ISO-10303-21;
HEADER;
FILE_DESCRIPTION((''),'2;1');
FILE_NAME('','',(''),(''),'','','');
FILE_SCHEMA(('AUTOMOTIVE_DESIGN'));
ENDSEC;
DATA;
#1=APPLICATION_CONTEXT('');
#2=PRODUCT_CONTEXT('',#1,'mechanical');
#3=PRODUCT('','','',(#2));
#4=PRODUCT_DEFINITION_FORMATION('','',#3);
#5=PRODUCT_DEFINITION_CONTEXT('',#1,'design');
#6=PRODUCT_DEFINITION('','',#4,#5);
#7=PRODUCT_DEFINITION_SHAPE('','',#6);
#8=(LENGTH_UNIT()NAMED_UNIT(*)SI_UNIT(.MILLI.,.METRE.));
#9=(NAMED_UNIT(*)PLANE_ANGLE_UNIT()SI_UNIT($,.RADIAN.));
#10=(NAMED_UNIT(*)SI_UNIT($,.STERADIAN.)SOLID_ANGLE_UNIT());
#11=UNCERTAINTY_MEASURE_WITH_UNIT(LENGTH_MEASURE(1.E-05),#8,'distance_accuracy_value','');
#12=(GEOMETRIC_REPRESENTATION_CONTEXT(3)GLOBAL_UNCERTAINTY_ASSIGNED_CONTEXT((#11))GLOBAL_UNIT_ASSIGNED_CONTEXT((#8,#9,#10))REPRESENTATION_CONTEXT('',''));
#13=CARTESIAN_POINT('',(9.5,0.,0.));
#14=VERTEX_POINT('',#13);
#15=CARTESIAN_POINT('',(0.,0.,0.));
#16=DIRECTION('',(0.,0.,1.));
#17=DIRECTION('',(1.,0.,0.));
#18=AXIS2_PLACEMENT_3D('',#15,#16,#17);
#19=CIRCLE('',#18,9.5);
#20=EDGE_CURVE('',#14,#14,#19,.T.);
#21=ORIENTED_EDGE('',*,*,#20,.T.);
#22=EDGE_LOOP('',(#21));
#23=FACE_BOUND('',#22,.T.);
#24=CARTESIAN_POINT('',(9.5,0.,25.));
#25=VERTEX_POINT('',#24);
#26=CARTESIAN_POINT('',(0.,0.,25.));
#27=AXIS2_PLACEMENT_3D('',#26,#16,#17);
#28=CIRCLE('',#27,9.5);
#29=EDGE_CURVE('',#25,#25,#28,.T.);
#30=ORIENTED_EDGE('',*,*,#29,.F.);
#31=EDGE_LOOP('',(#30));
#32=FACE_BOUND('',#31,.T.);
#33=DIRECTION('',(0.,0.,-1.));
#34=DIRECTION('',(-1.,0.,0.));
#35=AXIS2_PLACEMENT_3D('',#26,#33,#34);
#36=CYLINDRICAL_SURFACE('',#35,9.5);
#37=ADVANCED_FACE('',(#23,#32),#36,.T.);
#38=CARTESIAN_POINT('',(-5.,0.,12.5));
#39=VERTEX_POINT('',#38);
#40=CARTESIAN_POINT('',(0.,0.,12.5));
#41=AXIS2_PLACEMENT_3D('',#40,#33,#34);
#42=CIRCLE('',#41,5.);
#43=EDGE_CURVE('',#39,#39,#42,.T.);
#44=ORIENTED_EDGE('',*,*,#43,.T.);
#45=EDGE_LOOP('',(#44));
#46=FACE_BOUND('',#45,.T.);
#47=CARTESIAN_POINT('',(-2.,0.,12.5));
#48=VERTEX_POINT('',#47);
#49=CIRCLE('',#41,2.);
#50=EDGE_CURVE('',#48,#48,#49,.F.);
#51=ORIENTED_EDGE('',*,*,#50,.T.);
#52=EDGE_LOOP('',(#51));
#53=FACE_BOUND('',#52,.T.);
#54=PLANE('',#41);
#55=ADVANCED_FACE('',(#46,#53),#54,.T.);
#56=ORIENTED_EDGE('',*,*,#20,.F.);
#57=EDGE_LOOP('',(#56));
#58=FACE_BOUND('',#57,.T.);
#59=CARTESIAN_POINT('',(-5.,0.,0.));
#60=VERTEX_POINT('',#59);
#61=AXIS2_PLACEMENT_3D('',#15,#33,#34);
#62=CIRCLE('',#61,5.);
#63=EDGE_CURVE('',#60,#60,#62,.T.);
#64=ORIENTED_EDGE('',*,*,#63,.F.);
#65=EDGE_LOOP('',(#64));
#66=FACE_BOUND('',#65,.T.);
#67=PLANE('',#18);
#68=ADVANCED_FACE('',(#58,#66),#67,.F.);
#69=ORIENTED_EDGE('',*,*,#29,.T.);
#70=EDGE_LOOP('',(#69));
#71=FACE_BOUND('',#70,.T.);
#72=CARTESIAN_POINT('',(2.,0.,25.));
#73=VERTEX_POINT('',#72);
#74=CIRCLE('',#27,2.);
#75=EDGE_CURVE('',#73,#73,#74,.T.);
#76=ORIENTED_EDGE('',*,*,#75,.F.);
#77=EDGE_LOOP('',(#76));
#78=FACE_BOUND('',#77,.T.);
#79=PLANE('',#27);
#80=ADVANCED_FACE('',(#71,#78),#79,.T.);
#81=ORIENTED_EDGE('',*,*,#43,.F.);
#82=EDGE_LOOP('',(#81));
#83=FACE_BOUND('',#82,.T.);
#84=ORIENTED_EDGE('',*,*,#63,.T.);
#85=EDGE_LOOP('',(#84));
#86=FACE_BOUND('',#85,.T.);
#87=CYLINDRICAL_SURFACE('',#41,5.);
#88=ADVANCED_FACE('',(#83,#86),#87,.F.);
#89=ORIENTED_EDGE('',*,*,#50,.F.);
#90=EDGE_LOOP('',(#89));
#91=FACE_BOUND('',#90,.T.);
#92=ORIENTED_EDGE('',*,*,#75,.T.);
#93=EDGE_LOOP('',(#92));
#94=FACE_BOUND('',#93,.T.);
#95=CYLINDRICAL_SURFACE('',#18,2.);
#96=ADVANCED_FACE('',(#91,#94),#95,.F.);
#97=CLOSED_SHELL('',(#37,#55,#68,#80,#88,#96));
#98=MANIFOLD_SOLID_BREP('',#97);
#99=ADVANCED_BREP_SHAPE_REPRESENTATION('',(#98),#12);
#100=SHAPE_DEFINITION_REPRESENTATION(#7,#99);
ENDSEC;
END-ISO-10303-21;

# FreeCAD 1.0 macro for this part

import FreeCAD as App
import Part
import Sketcher
Q = App.Units.Quantity

doc = App.newDocument("Part")
body = doc.addObject("PartDesign::Body", "Body")

# Sketch on XY plane
sketch1 = body.newObject("Sketcher::SketchObject", "Sketch")
sketch1.AttachmentSupport = (doc.getObject("XY_Plane"), [""])
sketch1.MapMode = "FlatFace"
sketch1.addGeometry(Part.Circle(App.Vector(0, 0, 0), App.Vector(0, 0, 1), 10), False)
sketch1.addConstraint(Sketcher.Constraint("Coincident", 0, 3, -1, 1))
sketch1.addConstraint(Sketcher.Constraint("Diameter", 0, Q("19 mm")))
pad1 = body.newObject("PartDesign::Pad", "Pad")
pad1.Profile = sketch1
pad1.Length = 25

# Sketch on XY plane
sketch2 = body.newObject("Sketcher::SketchObject", "Sketch001")
sketch2.AttachmentSupport = (doc.getObject("XY_Plane"), [""])
sketch2.MapMode = "FlatFace"
sketch2.AttachmentOffset = App.Placement(App.Vector(0, 0, 25), App.Rotation())
sketch2.addGeometry(Part.Circle(App.Vector(0, 0, 0), App.Vector(0, 0, 1), 2), False)
sketch2.addConstraint(Sketcher.Constraint("Coincident", 0, 3, -1, 1))
sketch2.addConstraint(Sketcher.Constraint("Diameter", 0, Q("4 mm")))
pocket1 = body.newObject("PartDesign::Pocket", "Pocket")
pocket1.Profile = sketch2
pocket1.Type = "ThroughAll"

# Sketch on XY plane
sketch3 = body.newObject("Sketcher::SketchObject", "Sketch002")
sketch3.AttachmentSupport = (doc.getObject("XY_Plane"), [""])
sketch3.MapMode = "FlatFace"
sketch3.addGeometry(Part.Circle(App.Vector(0, 0, 0), App.Vector(0, 0, 1), 5), False)
sketch3.addConstraint(Sketcher.Constraint("Coincident", 0, 3, -1, 1))
sketch3.addConstraint(Sketcher.Constraint("Diameter", 0, Q("10 mm")))
pocket2 = body.newObject("PartDesign::Pocket", "Pocket001")
pocket2.Profile = sketch3
pocket2.Length = 12.5
pocket2.Reversed = True

doc.recompute()
